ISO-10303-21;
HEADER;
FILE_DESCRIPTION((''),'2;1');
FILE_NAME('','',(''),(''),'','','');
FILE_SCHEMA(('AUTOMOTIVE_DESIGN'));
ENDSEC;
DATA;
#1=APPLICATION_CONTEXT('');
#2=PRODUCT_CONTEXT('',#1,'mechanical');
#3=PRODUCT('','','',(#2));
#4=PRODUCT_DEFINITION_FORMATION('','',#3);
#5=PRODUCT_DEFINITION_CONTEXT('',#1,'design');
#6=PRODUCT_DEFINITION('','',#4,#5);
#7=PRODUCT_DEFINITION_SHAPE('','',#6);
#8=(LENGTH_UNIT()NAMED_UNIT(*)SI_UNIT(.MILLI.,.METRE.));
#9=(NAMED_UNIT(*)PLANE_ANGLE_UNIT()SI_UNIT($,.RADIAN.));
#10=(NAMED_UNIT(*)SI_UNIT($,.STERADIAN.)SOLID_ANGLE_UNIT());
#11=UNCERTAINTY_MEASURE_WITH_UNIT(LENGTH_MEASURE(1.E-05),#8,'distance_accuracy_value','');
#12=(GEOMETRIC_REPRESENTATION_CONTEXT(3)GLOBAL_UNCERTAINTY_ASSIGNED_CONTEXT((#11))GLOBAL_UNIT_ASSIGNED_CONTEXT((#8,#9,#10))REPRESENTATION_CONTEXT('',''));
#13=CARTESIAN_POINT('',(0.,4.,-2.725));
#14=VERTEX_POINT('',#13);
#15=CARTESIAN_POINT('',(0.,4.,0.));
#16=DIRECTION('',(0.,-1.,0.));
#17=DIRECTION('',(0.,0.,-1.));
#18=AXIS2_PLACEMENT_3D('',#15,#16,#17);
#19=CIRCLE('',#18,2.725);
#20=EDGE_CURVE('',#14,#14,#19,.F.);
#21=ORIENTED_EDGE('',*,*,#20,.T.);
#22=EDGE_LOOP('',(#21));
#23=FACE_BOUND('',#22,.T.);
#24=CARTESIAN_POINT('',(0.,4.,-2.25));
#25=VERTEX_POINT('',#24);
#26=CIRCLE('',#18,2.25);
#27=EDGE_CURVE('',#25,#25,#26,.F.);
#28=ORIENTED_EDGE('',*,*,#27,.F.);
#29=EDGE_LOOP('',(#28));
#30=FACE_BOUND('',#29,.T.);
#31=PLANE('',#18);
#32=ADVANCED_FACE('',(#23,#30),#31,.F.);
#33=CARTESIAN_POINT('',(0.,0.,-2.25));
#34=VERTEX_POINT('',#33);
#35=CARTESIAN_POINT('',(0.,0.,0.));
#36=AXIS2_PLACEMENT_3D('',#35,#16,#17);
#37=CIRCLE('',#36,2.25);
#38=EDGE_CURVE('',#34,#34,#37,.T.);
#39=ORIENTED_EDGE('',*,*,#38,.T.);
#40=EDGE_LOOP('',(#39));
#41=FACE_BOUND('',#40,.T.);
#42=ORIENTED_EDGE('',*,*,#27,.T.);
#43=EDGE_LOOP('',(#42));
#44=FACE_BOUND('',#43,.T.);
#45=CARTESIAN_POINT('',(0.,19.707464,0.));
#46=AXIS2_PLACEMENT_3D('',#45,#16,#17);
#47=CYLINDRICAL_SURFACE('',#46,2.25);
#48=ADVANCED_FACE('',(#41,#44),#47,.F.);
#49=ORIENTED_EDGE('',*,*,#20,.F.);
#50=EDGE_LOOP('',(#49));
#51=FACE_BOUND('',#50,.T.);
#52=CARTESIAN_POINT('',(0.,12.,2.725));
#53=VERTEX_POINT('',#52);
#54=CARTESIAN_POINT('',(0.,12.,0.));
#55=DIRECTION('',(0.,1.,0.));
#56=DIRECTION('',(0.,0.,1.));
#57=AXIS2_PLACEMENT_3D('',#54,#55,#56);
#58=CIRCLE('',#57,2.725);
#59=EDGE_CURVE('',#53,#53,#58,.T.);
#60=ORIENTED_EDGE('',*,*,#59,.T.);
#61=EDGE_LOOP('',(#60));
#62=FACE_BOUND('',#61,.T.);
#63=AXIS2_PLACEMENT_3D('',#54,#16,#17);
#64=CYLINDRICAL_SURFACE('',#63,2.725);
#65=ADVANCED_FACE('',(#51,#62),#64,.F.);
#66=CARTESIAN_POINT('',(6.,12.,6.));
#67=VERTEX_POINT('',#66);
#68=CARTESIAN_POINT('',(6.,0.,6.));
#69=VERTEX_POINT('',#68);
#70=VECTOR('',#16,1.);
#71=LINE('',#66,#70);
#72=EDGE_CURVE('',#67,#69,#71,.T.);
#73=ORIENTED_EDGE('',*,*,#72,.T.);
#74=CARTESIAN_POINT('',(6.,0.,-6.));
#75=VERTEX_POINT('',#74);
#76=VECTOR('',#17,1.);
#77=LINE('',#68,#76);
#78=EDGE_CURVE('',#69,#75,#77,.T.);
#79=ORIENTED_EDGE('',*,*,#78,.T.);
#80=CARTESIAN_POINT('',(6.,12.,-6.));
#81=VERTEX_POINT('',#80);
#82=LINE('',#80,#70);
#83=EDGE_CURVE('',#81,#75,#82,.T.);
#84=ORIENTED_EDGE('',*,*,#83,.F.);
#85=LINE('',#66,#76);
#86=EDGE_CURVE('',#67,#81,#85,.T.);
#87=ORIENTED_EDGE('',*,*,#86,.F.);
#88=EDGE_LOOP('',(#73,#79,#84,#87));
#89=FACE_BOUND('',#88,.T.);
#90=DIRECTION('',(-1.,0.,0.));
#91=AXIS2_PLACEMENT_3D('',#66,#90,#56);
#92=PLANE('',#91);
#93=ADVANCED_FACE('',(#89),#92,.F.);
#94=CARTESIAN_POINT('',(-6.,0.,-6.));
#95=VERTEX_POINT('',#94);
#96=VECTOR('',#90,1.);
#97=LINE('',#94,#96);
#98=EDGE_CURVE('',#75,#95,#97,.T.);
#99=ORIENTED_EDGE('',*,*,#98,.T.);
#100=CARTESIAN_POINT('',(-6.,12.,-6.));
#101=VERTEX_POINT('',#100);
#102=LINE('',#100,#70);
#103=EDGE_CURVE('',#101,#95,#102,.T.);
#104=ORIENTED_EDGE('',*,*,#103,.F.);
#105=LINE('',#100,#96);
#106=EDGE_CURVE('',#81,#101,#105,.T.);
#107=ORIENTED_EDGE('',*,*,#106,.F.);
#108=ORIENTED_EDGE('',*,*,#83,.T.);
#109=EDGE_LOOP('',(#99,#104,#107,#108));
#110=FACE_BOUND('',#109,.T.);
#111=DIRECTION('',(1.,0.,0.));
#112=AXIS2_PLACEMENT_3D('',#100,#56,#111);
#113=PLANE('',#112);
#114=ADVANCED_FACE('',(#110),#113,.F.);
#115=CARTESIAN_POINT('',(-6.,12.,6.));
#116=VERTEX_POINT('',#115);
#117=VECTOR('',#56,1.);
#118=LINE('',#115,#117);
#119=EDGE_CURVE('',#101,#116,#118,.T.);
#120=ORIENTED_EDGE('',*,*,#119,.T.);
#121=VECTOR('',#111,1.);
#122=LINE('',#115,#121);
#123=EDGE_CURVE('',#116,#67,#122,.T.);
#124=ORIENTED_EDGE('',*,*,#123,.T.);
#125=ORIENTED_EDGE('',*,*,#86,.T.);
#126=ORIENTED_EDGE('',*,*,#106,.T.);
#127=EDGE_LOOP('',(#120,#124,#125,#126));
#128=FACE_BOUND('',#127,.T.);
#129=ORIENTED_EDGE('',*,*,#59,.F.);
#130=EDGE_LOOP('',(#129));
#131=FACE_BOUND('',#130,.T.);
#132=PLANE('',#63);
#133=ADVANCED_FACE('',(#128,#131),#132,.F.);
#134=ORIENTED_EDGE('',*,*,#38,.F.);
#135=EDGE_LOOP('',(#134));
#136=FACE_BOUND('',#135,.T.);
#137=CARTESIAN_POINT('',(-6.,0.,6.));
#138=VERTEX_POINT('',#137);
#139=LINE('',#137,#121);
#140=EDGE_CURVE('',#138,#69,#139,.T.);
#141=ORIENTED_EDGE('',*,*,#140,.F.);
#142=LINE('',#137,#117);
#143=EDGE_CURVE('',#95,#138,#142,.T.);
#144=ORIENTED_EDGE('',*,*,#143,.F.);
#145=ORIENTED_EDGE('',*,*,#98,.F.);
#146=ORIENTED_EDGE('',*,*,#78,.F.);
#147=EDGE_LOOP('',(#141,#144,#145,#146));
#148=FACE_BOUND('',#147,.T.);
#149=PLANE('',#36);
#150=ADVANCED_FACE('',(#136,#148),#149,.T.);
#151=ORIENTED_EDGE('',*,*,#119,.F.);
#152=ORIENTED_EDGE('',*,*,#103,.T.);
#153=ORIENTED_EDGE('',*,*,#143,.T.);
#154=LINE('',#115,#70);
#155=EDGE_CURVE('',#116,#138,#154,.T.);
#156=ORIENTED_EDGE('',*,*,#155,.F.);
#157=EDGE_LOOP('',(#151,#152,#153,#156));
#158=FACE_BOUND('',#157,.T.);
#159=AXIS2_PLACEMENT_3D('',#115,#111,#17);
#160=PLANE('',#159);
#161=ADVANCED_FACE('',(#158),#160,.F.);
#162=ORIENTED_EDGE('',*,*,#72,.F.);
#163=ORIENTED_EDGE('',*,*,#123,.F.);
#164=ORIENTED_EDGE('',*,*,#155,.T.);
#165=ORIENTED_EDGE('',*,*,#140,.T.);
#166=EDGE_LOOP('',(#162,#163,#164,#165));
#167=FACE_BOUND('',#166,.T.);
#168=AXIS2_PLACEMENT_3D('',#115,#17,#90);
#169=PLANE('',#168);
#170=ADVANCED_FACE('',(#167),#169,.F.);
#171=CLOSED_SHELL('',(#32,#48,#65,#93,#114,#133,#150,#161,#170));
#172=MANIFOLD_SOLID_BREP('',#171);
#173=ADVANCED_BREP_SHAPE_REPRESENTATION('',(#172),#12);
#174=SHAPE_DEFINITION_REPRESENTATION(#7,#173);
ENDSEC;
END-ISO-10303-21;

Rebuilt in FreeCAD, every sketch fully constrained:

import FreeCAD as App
import Part
import Sketcher

V = App.Vector


def add_polygon(sketch, points):
    """Adds a closed chain of lines whose ends are joined by coincident constraints."""
    first, n = sketch.GeometryCount, len(points)
    for a, b in zip(points, points[1:] + points[:1]):
        sketch.addGeometry(Part.LineSegment(App.Vector(*a, 0), App.Vector(*b, 0)), False)
    for i in range(n):
        sketch.addConstraint(Sketcher.Constraint("Coincident", first + i, 2, first + (i + 1) % n, 1))

doc = App.newDocument("Part")
body = doc.addObject("PartDesign::Body", "Body")

# Sketch on XZ plane
sketch1 = body.newObject("Sketcher::SketchObject", "Sketch")
sketch1.AttachmentSupport = (doc.getObject("XZ_Plane"), [""])
sketch1.MapMode = "FlatFace"
add_polygon(sketch1, [(-6, -6), (-6, 6), (6, 6), (6, -6)])  # lines 0-3
sketch1.addGeometry(Part.Circle(V(0, 0, 0), V(0, 0, 1), 2.7), False)  # 4
sketch1.addConstraint([
    Sketcher.Constraint("Vertical", 0),
    Sketcher.Constraint("Horizontal", 1),
    Sketcher.Constraint("Vertical", 2),
    Sketcher.Constraint("Horizontal", 3),
    Sketcher.Constraint("Coincident", 4, 3, -1, 1),
    Sketcher.Constraint("Symmetric", 0, 2, 2, 2, -1, 1),
    Sketcher.Constraint("Equal", 3, 0),
    Sketcher.Constraint("Diameter", 4, 5.45),
    Sketcher.Constraint("DistanceX", 1, 1, 1, 2, 12.0),
])
pad1 = body.newObject("PartDesign::Pad", "Pad")
pad1.Profile = sketch1
pad1.Length = 12
pad1.Reversed = True

# Sketch on XZ plane
sketch2 = body.newObject("Sketcher::SketchObject", "Sketch001")
sketch2.AttachmentSupport = (doc.getObject("XZ_Plane"), [""])
sketch2.MapMode = "FlatFace"
sketch2.addGeometry([
    Part.Circle(V(0, 0, 0), V(0, 0, 1), 2.7),
    Part.Circle(V(0, 0, 0), V(0, 0, 1), 2.2),
], False)
sketch2.addConstraint([
    Sketcher.Constraint("Coincident", 0, 3, -1, 1),
    Sketcher.Constraint("Coincident", 1, 3, -1, 1),
    Sketcher.Constraint("Diameter", 1, 4.5),
    Sketcher.Constraint("Diameter", 0, 5.45),
])
pad2 = body.newObject("PartDesign::Pad", "Pad001")
pad2.Profile = sketch2
pad2.Length = 4
pad2.Reversed = True

doc.recompute()
